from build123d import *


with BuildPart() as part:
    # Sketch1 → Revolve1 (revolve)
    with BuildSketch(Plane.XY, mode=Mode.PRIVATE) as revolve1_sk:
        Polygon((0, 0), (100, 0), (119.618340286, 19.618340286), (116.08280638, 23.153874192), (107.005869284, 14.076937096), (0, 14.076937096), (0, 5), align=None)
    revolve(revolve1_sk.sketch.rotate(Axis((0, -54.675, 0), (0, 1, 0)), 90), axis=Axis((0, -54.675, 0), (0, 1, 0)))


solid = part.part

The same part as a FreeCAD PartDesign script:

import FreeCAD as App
import Part
import Sketcher

V = App.Vector
Q = App.Units.Quantity

doc = App.newDocument("Part")
params = doc.addObject("Spreadsheet::Sheet", "Params")
for row, (alias, value) in enumerate([
    ("sketch1_width", "100 mm"),
    ("sketch1_length", "5 mm"),
    ("revolution_angle", "360 deg"),
], start=1):
    params.set(f"A{row}", alias)
    params.set(f"B{row}", "=" + value)
    params.setAlias(f"B{row}", alias)

body = doc.addObject("PartDesign::Body", "Body")

sketch1 = doc.addObject("Sketcher::SketchObject", "Sketch")
body.addObject(sketch1)
sketch1.AttachmentSupport = (doc.XY_Plane, [""])
sketch1.MapMode = "FlatFace"
sketch1.addGeometry([
    Part.LineSegment(V(0, 0, 0), V(100, 0, 0)),
    Part.LineSegment(V(100, 0, 0), V(120, 20, 0)),
    Part.LineSegment(V(120, 20, 0), V(116, 23, 0)),
    Part.LineSegment(V(116, 23, 0), V(107, 14, 0)),
    Part.LineSegment(V(107, 14, 0), V(0, 14, 0)),
    Part.LineSegment(V(0, 14, 0), V(0, 0, 0)),
], False)
sketch1.addConstraint([
    Sketcher.Constraint("Coincident", 0, 2, 1, 1),
    Sketcher.Constraint("Coincident", 1, 2, 2, 1),
    Sketcher.Constraint("Coincident", 2, 2, 3, 1),
    Sketcher.Constraint("Coincident", 3, 2, 4, 1),
    Sketcher.Constraint("Coincident", 4, 2, 5, 1),
    Sketcher.Constraint("Coincident", 5, 2, 0, 1),
    Sketcher.Constraint("Horizontal", 0),
    Sketcher.Constraint("Horizontal", 4),
    Sketcher.Constraint("Vertical", 5),
    Sketcher.Constraint("Coincident", 5, 2, -1, 1),
    Sketcher.Constraint("Perpendicular", 1, 2),
    Sketcher.Constraint("Perpendicular", 2, 3),
    Sketcher.Constraint("DistanceX", 0, 1, 0, 2, Q("100 mm")),
    Sketcher.Constraint("Angle", 1, Q("45 deg")),
    Sketcher.Constraint("Distance", 2, Q("5 mm")),
    Sketcher.Constraint("DistanceX", 4, 2, 4, 1, Q("107.005869 mm")),
    Sketcher.Constraint("DistanceX", -1, 1, 1, 2, Q("119.61834 mm")),
])
sketch1.setExpression("Constraints[12]", "Params.sketch1_width")
sketch1.setExpression("Constraints[14]", "Params.sketch1_length")
revolution = doc.addObject("PartDesign::Revolution", "Revolution")
body.addObject(revolution)
revolution.Profile = sketch1
revolution.ReferenceAxis = (sketch1, ["V_Axis"])
revolution.setExpression("Angle", "Params.revolution_angle")

doc.recompute()
